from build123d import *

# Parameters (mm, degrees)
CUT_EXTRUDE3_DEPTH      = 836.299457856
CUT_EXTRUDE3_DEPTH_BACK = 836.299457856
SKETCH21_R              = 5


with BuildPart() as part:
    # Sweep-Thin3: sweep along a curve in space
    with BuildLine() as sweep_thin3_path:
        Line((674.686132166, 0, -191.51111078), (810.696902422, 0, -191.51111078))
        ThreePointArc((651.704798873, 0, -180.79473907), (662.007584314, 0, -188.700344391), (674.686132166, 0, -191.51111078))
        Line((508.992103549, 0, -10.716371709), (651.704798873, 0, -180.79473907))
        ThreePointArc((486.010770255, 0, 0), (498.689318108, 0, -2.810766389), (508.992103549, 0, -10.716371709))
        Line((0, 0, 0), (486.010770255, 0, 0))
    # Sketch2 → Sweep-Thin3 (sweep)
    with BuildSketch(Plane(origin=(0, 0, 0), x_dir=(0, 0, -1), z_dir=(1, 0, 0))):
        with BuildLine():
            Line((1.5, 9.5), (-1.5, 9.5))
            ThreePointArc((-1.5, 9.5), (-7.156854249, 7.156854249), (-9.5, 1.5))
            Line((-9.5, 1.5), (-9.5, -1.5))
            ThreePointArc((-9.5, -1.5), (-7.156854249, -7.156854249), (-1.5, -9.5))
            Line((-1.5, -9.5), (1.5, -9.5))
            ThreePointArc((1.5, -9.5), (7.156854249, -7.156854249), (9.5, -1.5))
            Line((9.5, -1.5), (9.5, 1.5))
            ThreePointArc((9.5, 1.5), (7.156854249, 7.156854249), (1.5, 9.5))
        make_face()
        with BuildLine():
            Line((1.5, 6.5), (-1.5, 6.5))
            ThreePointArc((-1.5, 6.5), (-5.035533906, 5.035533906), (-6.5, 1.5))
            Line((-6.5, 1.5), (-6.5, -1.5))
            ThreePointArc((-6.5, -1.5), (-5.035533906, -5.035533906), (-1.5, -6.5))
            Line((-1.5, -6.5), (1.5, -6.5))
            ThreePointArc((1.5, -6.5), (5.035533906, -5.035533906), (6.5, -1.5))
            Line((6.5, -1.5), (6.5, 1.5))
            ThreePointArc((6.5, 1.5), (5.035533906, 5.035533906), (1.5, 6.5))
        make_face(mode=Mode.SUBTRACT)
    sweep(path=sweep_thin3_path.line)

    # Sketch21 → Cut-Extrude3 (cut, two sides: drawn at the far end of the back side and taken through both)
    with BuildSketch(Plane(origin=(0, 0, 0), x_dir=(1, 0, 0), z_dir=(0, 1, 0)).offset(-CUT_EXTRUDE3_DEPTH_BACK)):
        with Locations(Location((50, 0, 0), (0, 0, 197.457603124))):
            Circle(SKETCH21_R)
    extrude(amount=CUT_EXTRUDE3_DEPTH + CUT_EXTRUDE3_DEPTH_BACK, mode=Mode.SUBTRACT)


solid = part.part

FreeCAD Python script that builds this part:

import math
import FreeCAD as App
import Part
import Sketcher

V = App.Vector
Q = App.Units.Quantity

doc = App.newDocument("Part")
body = doc.addObject("PartDesign::Body", "Body")

# Sketch on YZ plane
sketch1 = body.newObject("Sketcher::SketchObject", "Sketch")
sketch1.AttachmentSupport = (doc.getObject("YZ_Plane"), [""])
sketch1.MapMode = "FlatFace"
sketch1.addGeometry([
    Part.LineSegment(V(9.5, -1.5, 0), V(9.5, 1.5, 0)),  # 0
    Part.ArcOfCircle(Part.Circle(V(1.5, 1.5, 0), V(0, 0, 1), 8), math.radians(0), math.radians(90)),  # 1
    Part.LineSegment(V(1.5, 9.5, 0), V(-1.5, 9.5, 0)),  # 2
    Part.ArcOfCircle(Part.Circle(V(-1.5, 1.5, 0), V(0, 0, 1), 8), math.radians(90), math.radians(180)),  # 3
    Part.LineSegment(V(-9.5, 1.5, 0), V(-9.5, -1.5, 0)),  # 4
    Part.ArcOfCircle(Part.Circle(V(-1.5, -1.5, 0), V(0, 0, 1), 8), math.radians(-180), math.radians(-90)),  # 5
    Part.LineSegment(V(-1.5, -9.5, 0), V(1.5, -9.5, 0)),  # 6
    Part.ArcOfCircle(Part.Circle(V(1.5, -1.5, 0), V(0, 0, 1), 8), math.radians(-90), math.radians(0)),  # 7
    Part.LineSegment(V(6.5, 1.5, 0), V(6.5, -1.5, 0)),  # 8
    Part.ArcOfCircle(Part.Circle(V(1.5, -1.5, 0), V(0, 0, 1), 5), math.radians(-90), math.radians(0)),  # 9
    Part.LineSegment(V(1.5, -6.5, 0), V(-1.5, -6.5, 0)),  # 10
    Part.ArcOfCircle(Part.Circle(V(-1.5, -1.5, 0), V(0, 0, 1), 5), math.radians(180), math.radians(270)),  # 11
    Part.LineSegment(V(-6.5, -1.5, 0), V(-6.5, 1.5, 0)),  # 12
    Part.ArcOfCircle(Part.Circle(V(-1.5, 1.5, 0), V(0, 0, 1), 5), math.radians(90), math.radians(180)),  # 13
    Part.LineSegment(V(-1.5, 6.5, 0), V(1.5, 6.5, 0)),  # 14
    Part.ArcOfCircle(Part.Circle(V(1.5, 1.5, 0), V(0, 0, 1), 5), math.radians(0), math.radians(90)),  # 15
], False)
sketch1.addConstraint([
    Sketcher.Constraint("Tangent", 0, 2, 1, 1),
    Sketcher.Constraint("Tangent", 1, 2, 2, 1),
    Sketcher.Constraint("Tangent", 2, 2, 3, 1),
    Sketcher.Constraint("Tangent", 3, 2, 4, 1),
    Sketcher.Constraint("Tangent", 4, 2, 5, 1),
    Sketcher.Constraint("Tangent", 5, 2, 6, 1),
    Sketcher.Constraint("Tangent", 6, 2, 7, 1),
    Sketcher.Constraint("Tangent", 7, 2, 0, 1),
    Sketcher.Constraint("Tangent", 8, 2, 9, 2),
    Sketcher.Constraint("Tangent", 9, 1, 10, 1),
    Sketcher.Constraint("Tangent", 10, 2, 11, 2),
    Sketcher.Constraint("Tangent", 11, 1, 12, 1),
    Sketcher.Constraint("Tangent", 12, 2, 13, 2),
    Sketcher.Constraint("Tangent", 13, 1, 14, 1),
    Sketcher.Constraint("Tangent", 14, 2, 15, 2),
    Sketcher.Constraint("Tangent", 15, 1, 8, 1),
    Sketcher.Constraint("Vertical", 0),
    Sketcher.Constraint("Horizontal", 2),
    Sketcher.Constraint("Vertical", 4),
    Sketcher.Constraint("Horizontal", 6),
    Sketcher.Constraint("Vertical", 8),
    Sketcher.Constraint("Horizontal", 10),
    Sketcher.Constraint("Vertical", 12),
    Sketcher.Constraint("Horizontal", 14),
    Sketcher.Constraint("Coincident", 9, 3, 7, 3),
    Sketcher.Constraint("Coincident", 11, 3, 5, 3),
    Sketcher.Constraint("Coincident", 13, 3, 3, 3),
    Sketcher.Constraint("Equal", 1, 3),
    Sketcher.Constraint("Equal", 3, 5),
    Sketcher.Constraint("Equal", 5, 7),
    Sketcher.Constraint("Equal", 13, 15),
    Sketcher.Constraint("Symmetric", 1, 3, 5, 3, -1, 1),
    Sketcher.Constraint("Equal", 14, 0),
    Sketcher.Constraint("Radius", 1, Q("8 mm")),
    Sketcher.Constraint("Radius", 9, Q("5 mm")),
    Sketcher.Constraint("DistanceX", 2, 2, 2, 1, Q("3 mm")),
])

# Sketch on XZ plane
sketch2 = body.newObject("Sketcher::SketchObject", "Sketch001")
sketch2.AttachmentSupport = (doc.getObject("XZ_Plane"), [""])
sketch2.MapMode = "FlatFace"
sketch2.addGeometry([
    Part.LineSegment(V(0, 0, 0), V(486, 0, 0)),  # 0
    Part.ArcOfCircle(Part.Circle(V(486, -30, 0), V(0, 0, 1), 30), math.radians(40), math.radians(90)),  # 1
    Part.LineSegment(V(509, -11, 0), V(652, -181, 0)),  # 2
    Part.ArcOfCircle(Part.Circle(V(675, -162, 0), V(0, 0, 1), 30), math.radians(-140), math.radians(-90)),  # 3
    Part.LineSegment(V(675, -192, 0), V(811, -192, 0)),  # 4
], False)
sketch2.addConstraint([
    Sketcher.Constraint("Tangent", 0, 2, 1, 2),
    Sketcher.Constraint("Tangent", 1, 1, 2, 1),
    Sketcher.Constraint("Tangent", 2, 2, 3, 1),
    Sketcher.Constraint("Tangent", 3, 2, 4, 1),
    Sketcher.Constraint("Horizontal", 0),
    Sketcher.Constraint("Horizontal", 4),
    Sketcher.Constraint("Coincident", 0, 1, -1, 1),
    Sketcher.Constraint("Equal", 1, 3),
    Sketcher.Constraint("Radius", 1, Q("30 mm")),
    Sketcher.Constraint("Angle", 2, Q("-50 deg")),
    Sketcher.Constraint("DistanceX", 0, 1, 0, 2, Q("486.01077 mm")),
    Sketcher.Constraint("DistanceX", 4, 1, 4, 2, Q("136.01077 mm")),
    Sketcher.Constraint("DistanceX", -1, 1, 2, 2, Q("651.704799 mm")),
])
doc.recompute()

additivepipe = body.newObject("PartDesign::AdditivePipe", "AdditivePipe")
additivepipe.Profile = sketch1
additivepipe.Spine = (sketch2, ["Edge1", "Edge2", "Edge3", "Edge4", "Edge5"])

# Sketch on XZ plane
sketch3 = body.newObject("Sketcher::SketchObject", "Sketch002")
sketch3.AttachmentSupport = (doc.getObject("XZ_Plane"), [""])
sketch3.MapMode = "FlatFace"
sketch3.addGeometry(Part.Circle(V(50, 0, 0), V(0, 0, 1), 5), False)
sketch3.addConstraint([
    Sketcher.Constraint("PointOnObject", 0, 3, -1),
    Sketcher.Constraint("Diameter", 0, Q("10 mm")),
    Sketcher.Constraint("DistanceX", -1, 1, 0, 3, Q("50 mm")),
])
pocket1 = body.newObject("PartDesign::Pocket", "Pocket")
pocket1.Profile = sketch3
pocket1.Type = "ThroughAll"
pocket1.Midplane = True

doc.recompute()
